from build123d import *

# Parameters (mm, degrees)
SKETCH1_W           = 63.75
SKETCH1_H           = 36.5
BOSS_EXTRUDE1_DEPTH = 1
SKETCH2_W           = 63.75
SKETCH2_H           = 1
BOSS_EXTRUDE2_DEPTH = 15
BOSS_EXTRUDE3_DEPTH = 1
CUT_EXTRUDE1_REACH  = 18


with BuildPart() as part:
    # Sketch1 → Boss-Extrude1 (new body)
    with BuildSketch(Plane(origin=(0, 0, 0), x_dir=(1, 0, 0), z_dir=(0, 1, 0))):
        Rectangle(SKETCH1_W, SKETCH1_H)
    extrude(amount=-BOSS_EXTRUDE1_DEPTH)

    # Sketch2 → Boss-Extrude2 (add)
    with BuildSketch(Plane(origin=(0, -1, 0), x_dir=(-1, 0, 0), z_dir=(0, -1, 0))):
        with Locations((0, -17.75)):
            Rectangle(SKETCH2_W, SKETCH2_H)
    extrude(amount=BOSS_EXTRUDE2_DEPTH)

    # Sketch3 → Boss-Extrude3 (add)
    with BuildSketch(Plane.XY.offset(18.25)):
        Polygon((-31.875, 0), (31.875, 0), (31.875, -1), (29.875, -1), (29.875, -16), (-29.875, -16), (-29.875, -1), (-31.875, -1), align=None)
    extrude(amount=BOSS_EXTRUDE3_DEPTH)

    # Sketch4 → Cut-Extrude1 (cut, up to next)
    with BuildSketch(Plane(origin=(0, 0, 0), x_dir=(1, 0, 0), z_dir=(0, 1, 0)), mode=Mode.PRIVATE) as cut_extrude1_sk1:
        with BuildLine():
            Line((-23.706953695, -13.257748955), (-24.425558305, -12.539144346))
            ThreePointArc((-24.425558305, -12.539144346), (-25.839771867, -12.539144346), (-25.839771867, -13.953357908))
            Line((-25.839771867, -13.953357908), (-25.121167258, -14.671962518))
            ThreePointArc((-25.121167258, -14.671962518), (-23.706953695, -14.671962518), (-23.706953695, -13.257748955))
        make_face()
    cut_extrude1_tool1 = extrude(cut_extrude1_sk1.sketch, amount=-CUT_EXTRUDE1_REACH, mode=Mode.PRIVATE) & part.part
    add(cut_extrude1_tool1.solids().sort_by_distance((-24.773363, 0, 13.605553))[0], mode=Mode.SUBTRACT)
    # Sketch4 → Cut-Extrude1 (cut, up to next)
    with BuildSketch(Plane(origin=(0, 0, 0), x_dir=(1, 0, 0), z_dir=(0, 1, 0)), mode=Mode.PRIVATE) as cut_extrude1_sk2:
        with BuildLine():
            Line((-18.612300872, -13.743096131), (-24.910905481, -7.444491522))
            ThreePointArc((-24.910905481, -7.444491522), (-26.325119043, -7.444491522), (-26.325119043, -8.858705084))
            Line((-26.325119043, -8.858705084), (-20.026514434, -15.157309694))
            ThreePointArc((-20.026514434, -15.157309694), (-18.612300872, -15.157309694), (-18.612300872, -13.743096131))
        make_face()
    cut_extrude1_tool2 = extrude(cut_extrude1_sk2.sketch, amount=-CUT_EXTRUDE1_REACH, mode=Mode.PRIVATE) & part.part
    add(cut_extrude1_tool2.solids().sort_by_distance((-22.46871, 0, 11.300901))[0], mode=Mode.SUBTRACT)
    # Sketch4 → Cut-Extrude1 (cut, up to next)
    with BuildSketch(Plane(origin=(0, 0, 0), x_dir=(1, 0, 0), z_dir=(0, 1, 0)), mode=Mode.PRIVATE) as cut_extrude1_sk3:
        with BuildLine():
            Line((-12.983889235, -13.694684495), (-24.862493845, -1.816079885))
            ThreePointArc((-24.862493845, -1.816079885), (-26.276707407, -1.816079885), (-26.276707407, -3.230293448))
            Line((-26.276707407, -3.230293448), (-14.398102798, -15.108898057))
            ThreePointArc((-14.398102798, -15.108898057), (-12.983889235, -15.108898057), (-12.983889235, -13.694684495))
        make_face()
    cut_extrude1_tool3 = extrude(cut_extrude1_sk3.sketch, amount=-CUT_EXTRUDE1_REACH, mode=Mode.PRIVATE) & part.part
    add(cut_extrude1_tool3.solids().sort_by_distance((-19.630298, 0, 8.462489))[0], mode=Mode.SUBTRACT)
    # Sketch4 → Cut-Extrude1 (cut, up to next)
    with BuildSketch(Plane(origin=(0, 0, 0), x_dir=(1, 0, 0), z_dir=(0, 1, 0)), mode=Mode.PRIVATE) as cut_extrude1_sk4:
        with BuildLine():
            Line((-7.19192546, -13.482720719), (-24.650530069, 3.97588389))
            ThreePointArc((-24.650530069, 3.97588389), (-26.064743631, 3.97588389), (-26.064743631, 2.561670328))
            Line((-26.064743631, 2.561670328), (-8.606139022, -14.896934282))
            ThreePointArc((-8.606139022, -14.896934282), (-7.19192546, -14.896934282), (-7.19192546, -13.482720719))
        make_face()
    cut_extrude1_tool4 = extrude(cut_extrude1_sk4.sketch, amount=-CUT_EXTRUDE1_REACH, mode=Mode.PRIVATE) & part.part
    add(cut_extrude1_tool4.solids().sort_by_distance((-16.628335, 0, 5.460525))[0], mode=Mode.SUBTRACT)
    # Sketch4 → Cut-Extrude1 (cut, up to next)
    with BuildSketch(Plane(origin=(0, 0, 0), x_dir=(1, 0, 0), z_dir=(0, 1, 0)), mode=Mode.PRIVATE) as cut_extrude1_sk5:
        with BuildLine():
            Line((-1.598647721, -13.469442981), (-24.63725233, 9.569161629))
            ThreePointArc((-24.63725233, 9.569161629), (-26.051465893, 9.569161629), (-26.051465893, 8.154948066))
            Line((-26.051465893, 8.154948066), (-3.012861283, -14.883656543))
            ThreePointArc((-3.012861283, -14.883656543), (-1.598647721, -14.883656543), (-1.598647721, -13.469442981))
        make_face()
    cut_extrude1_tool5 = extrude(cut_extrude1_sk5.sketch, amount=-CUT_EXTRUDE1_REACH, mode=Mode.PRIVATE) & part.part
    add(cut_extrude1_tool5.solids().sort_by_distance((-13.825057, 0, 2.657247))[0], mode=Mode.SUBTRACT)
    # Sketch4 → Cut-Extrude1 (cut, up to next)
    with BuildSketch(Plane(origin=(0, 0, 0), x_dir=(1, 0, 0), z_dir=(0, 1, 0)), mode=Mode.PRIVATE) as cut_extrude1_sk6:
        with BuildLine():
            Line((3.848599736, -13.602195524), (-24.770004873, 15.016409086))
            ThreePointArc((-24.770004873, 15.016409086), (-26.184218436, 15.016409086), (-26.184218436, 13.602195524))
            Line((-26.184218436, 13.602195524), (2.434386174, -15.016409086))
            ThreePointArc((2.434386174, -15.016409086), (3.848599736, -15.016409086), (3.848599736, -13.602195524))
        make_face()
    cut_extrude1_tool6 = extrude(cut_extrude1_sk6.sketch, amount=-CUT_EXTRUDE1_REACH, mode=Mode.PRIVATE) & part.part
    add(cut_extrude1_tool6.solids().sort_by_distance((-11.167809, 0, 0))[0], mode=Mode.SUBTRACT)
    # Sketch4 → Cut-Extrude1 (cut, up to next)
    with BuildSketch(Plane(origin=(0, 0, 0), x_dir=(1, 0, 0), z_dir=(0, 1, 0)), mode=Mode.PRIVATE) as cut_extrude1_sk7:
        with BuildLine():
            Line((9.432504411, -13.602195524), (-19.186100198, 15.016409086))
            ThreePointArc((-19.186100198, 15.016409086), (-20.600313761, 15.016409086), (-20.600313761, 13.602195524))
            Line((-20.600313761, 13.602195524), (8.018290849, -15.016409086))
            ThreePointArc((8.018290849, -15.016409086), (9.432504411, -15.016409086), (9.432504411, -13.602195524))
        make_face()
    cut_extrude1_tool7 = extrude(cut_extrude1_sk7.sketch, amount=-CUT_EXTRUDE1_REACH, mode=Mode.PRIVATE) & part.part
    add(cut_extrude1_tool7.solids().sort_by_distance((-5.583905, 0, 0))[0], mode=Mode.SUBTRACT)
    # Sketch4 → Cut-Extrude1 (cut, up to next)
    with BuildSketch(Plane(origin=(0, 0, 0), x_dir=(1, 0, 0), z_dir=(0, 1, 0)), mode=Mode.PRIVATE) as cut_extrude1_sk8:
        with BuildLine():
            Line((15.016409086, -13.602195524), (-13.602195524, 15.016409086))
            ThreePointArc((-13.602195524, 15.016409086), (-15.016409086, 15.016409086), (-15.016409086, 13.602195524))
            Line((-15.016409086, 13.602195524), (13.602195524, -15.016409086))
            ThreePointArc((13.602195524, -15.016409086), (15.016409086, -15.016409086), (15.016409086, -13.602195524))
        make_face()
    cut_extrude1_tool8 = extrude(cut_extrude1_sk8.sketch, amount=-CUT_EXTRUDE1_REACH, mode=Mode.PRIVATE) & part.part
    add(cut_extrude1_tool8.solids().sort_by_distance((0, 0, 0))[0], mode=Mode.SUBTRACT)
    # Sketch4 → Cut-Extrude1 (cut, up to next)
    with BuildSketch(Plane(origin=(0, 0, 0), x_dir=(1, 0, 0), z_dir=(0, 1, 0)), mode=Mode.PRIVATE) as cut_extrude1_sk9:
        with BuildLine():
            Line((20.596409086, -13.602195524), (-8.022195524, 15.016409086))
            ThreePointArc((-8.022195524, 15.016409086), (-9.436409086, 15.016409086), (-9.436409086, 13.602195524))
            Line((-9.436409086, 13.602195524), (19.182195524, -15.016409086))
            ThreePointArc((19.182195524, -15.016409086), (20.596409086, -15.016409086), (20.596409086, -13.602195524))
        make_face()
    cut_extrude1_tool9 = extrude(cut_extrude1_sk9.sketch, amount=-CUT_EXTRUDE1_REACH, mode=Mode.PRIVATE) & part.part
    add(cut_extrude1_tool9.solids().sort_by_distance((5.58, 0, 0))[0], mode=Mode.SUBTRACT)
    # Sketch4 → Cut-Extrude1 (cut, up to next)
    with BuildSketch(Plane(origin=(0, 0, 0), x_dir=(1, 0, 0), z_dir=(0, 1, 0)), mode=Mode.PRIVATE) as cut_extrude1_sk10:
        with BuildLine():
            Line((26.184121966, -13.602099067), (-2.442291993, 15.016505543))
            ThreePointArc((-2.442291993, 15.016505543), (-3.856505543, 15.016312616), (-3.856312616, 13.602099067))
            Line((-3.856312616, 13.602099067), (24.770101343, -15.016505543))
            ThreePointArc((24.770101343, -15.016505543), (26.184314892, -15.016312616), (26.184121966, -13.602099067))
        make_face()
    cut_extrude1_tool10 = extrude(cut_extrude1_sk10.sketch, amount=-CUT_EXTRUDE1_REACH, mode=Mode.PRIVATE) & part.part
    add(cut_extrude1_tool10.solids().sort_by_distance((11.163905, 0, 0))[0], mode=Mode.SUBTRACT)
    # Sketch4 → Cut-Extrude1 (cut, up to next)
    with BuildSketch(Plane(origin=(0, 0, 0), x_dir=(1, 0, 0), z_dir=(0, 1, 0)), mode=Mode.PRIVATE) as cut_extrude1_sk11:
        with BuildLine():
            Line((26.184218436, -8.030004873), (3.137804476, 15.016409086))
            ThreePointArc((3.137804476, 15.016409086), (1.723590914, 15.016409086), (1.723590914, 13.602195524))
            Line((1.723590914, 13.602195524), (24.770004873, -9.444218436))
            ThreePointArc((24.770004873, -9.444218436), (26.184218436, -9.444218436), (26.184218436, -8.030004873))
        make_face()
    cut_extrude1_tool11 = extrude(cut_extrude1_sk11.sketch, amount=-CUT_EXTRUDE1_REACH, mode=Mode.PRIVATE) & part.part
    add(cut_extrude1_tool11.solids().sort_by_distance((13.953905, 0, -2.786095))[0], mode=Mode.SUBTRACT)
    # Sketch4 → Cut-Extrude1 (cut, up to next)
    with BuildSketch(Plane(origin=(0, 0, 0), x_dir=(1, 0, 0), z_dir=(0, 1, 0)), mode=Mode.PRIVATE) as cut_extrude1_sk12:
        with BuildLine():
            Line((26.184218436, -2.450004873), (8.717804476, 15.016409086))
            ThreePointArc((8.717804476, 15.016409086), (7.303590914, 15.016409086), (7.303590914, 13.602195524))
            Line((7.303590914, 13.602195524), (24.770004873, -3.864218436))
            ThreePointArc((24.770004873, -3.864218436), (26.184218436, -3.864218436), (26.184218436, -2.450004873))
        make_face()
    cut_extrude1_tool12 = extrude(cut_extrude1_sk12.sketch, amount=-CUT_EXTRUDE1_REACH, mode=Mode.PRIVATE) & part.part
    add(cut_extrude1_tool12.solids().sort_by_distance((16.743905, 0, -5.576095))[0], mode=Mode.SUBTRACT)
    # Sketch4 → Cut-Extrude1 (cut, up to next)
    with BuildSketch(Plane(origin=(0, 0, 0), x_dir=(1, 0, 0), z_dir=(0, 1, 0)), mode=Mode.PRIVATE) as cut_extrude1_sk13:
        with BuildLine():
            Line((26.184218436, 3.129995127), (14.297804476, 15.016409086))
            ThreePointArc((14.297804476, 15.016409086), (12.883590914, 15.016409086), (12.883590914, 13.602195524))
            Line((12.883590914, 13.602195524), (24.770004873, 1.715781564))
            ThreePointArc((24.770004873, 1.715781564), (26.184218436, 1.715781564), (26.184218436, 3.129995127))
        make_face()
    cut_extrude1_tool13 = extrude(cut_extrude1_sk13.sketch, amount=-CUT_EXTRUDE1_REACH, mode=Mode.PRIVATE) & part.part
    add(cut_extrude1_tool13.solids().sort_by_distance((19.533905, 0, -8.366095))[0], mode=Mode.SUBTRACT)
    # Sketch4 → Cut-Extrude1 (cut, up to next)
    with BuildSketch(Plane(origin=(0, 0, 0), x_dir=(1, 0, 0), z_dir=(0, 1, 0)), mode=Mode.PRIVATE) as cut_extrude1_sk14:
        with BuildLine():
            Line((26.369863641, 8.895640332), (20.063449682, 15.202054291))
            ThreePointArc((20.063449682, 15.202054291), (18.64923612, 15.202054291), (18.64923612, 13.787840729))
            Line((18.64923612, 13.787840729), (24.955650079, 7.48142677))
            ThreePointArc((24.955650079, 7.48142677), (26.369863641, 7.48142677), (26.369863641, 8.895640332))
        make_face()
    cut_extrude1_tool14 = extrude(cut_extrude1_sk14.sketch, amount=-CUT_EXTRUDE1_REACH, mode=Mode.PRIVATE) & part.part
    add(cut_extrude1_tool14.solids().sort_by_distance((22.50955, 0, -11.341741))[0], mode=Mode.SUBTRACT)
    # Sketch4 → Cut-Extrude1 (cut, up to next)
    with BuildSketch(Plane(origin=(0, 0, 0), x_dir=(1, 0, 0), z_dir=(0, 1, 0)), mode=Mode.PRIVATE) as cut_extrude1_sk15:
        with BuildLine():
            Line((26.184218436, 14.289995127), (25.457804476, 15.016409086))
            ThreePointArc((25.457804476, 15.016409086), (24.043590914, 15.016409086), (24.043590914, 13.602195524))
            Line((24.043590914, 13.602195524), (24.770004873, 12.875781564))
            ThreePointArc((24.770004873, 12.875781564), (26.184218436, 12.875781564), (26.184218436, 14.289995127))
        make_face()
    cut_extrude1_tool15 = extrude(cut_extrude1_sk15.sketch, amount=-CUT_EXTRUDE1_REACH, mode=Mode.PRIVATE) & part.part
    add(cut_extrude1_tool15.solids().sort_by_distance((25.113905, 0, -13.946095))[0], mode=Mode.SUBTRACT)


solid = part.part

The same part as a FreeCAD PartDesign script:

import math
import FreeCAD as App
import Part
import Sketcher
from FreeCAD import Vector
Q = App.Units.Quantity

doc = App.newDocument("Part")
body = doc.addObject("PartDesign::Body", "Body")

sketch1 = body.newObject("Sketcher::SketchObject", "Sketch")
sketch1.AttachmentSupport = (doc.getObject("XZ_Plane"), [""])
sketch1.MapMode = "FlatFace"
sketch1.addGeometry(Part.LineSegment(Vector(-32, -18, 0), Vector(-32, 18, 0)), False)
sketch1.addGeometry(Part.LineSegment(Vector(-32, 18, 0), Vector(32, 18, 0)), False)
sketch1.addGeometry(Part.LineSegment(Vector(32, 18, 0), Vector(32, -18, 0)), False)
sketch1.addGeometry(Part.LineSegment(Vector(32, -18, 0), Vector(-32, -18, 0)), False)
sketch1.addConstraint(Sketcher.Constraint("Coincident", 0, 2, 1, 1))
sketch1.addConstraint(Sketcher.Constraint("Coincident", 1, 2, 2, 1))
sketch1.addConstraint(Sketcher.Constraint("Coincident", 2, 2, 3, 1))
sketch1.addConstraint(Sketcher.Constraint("Coincident", 3, 2, 0, 1))
sketch1.addConstraint(Sketcher.Constraint("Vertical", 0))
sketch1.addConstraint(Sketcher.Constraint("Horizontal", 1))
sketch1.addConstraint(Sketcher.Constraint("Vertical", 2))
sketch1.addConstraint(Sketcher.Constraint("Horizontal", 3))
sketch1.addConstraint(Sketcher.Constraint("Symmetric", 0, 2, 2, 2, -1, 1))
sketch1.addConstraint(Sketcher.Constraint("DistanceY", 0, 1, 0, 2, 36.5))
sketch1.addConstraint(Sketcher.Constraint("DistanceX", 1, 1, 1, 2, 63.75))
pad1 = body.newObject("PartDesign::Pad", "Pad")
pad1.Profile = sketch1
pad1.Length = 1

sketch2 = body.newObject("Sketcher::SketchObject", "Sketch001")
sketch2.AttachmentSupport = (doc.getObject("XZ_Plane"), [""])
sketch2.MapMode = "FlatFace"
sketch2.AttachmentOffset = App.Placement(Vector(0, 0, 1), App.Rotation())
sketch2.addGeometry(Part.LineSegment(Vector(31.9, 17.2, 0), Vector(31.9, 18.2, 0)), False)
sketch2.addGeometry(Part.LineSegment(Vector(31.9, 18.2, 0), Vector(-31.9, 18.2, 0)), False)
sketch2.addGeometry(Part.LineSegment(Vector(-31.9, 18.2, 0), Vector(-31.9, 17.2, 0)), False)
sketch2.addGeometry(Part.LineSegment(Vector(-31.9, 17.2, 0), Vector(31.9, 17.2, 0)), False)
sketch2.addConstraint(Sketcher.Constraint("Coincident", 0, 2, 1, 1))
sketch2.addConstraint(Sketcher.Constraint("Coincident", 1, 2, 2, 1))
sketch2.addConstraint(Sketcher.Constraint("Coincident", 2, 2, 3, 1))
sketch2.addConstraint(Sketcher.Constraint("Coincident", 3, 2, 0, 1))
sketch2.addConstraint(Sketcher.Constraint("Vertical", 0))
sketch2.addConstraint(Sketcher.Constraint("Horizontal", 1))
sketch2.addConstraint(Sketcher.Constraint("Vertical", 2))
sketch2.addConstraint(Sketcher.Constraint("Horizontal", 3))
sketch2.addConstraint(Sketcher.Constraint("DistanceY", 0, 1, 0, 2, 1.0))
sketch2.addConstraint(Sketcher.Constraint("DistanceX", 1, 2, 1, 1, 63.75))
sketch2.addConstraint(Sketcher.Constraint("DistanceY", -1, 1, 0, 2, 18.25))
sketch2.addConstraint(Sketcher.Constraint("DistanceX", -1, 1, 0, 2, 31.875))
pad2 = body.newObject("PartDesign::Pad", "Pad001")
pad2.Profile = sketch2
pad2.Length = 15

sketch3 = body.newObject("Sketcher::SketchObject", "Sketch002")
sketch3.AttachmentSupport = (doc.getObject("XY_Plane"), [""])
sketch3.MapMode = "FlatFace"
sketch3.AttachmentOffset = App.Placement(Vector(0, 0, 18.25), App.Rotation())
sketch3.addGeometry(Part.LineSegment(Vector(31.9, 0, 0), Vector(-31.9, 0, 0)), False)
sketch3.addGeometry(Part.LineSegment(Vector(-31.9, 0, 0), Vector(-31.9, -1, 0)), False)
sketch3.addGeometry(Part.LineSegment(Vector(-31.9, -1, 0), Vector(-29.9, -1, 0)), False)
sketch3.addGeometry(Part.LineSegment(Vector(-29.9, -1, 0), Vector(-29.9, -16, 0)), False)
sketch3.addGeometry(Part.LineSegment(Vector(-29.9, -16, 0), Vector(29.9, -16, 0)), False)
sketch3.addGeometry(Part.LineSegment(Vector(29.9, -16, 0), Vector(29.9, -1, 0)), False)
sketch3.addGeometry(Part.LineSegment(Vector(29.9, -1, 0), Vector(31.9, -1, 0)), False)
sketch3.addGeometry(Part.LineSegment(Vector(31.9, -1, 0), Vector(31.9, 0, 0)), False)
sketch3.addConstraint(Sketcher.Constraint("Coincident", 0, 2, 1, 1))
sketch3.addConstraint(Sketcher.Constraint("Coincident", 1, 2, 2, 1))
sketch3.addConstraint(Sketcher.Constraint("Coincident", 2, 2, 3, 1))
sketch3.addConstraint(Sketcher.Constraint("Coincident", 3, 2, 4, 1))
sketch3.addConstraint(Sketcher.Constraint("Coincident", 4, 2, 5, 1))
sketch3.addConstraint(Sketcher.Constraint("Coincident", 5, 2, 6, 1))
sketch3.addConstraint(Sketcher.Constraint("Coincident", 6, 2, 7, 1))
sketch3.addConstraint(Sketcher.Constraint("Coincident", 7, 2, 0, 1))
sketch3.addConstraint(Sketcher.Constraint("Horizontal", 0))
sketch3.addConstraint(Sketcher.Constraint("Vertical", 1))
sketch3.addConstraint(Sketcher.Constraint("Horizontal", 2))
sketch3.addConstraint(Sketcher.Constraint("Vertical", 3))
sketch3.addConstraint(Sketcher.Constraint("Horizontal", 4))
sketch3.addConstraint(Sketcher.Constraint("Vertical", 5))
sketch3.addConstraint(Sketcher.Constraint("Horizontal", 6))
sketch3.addConstraint(Sketcher.Constraint("Vertical", 7))
sketch3.addConstraint(Sketcher.Constraint("Symmetric", 0, 2, 7, 2, -1, 1))
sketch3.addConstraint(Sketcher.Constraint("Symmetric", 2, 2, 5, 2, -2))
sketch3.addConstraint(Sketcher.Constraint("DistanceX", 2, 1, 2, 2, 2.0))
sketch3.addConstraint(Sketcher.Constraint("DistanceY", 1, 2, 1, 1, 1.0))
sketch3.addConstraint(Sketcher.Constraint("DistanceY", 3, 2, 3, 1, 15.0))
sketch3.addConstraint(Sketcher.Constraint("DistanceX", 0, 2, 0, 1, 63.75))
pad3 = body.newObject("PartDesign::Pad", "Pad002")
pad3.Profile = sketch3
pad3.Length = 1

sketch4 = body.newObject("Sketcher::SketchObject", "Sketch003")
sketch4.AttachmentSupport = (doc.getObject("XZ_Plane"), [""])
sketch4.MapMode = "FlatFace"
sketch4.addGeometry(Part.LineSegment(Vector(-23.7, 13.3, 0), Vector(-24.4, 12.5, 0)), False)
sketch4.addGeometry(Part.ArcOfCircle(Part.Circle(Vector(-25.1, 13.2, 0), Vector(0, 0, 1), 1), math.radians(135), math.radians(315)), False)
sketch4.addGeometry(Part.LineSegment(Vector(-25.8, 14, 0), Vector(-25.1, 14.7, 0)), False)
sketch4.addGeometry(Part.ArcOfCircle(Part.Circle(Vector(-24.4, 14, 0), Vector(0, 0, 1), 1), math.radians(-45), math.radians(135)), False)
sketch4.addConstraint(Sketcher.Constraint("Tangent", 0, 2, 1, 2))
sketch4.addConstraint(Sketcher.Constraint("Tangent", 1, 1, 2, 1))
sketch4.addConstraint(Sketcher.Constraint("Tangent", 2, 2, 3, 2))
sketch4.addConstraint(Sketcher.Constraint("Tangent", 3, 1, 0, 1))
sketch4.addConstraint(Sketcher.Constraint("Equal", 1, 3))
sketch4.addConstraint(Sketcher.Constraint("Radius", 1, 1.0))
sketch4.addConstraint(Sketcher.Constraint("Angle", 0, Q("-135 deg")))
sketch4.addConstraint(Sketcher.Constraint("Distance", 0, 1.01626))
sketch4.addConstraint(Sketcher.Constraint("DistanceY", -1, 1, 1, 3, 13.246251))
sketch4.addConstraint(Sketcher.Constraint("DistanceX", 3, 3, -1, 1, 24.41406))
pocket1 = body.newObject("PartDesign::Pocket", "Pocket")
pocket1.Profile = sketch4
pocket1.Type = "UpToFirst"
pocket1.Reversed = True

sketch5 = body.newObject("Sketcher::SketchObject", "Sketch004")
sketch5.AttachmentSupport = (doc.getObject("XZ_Plane"), [""])
sketch5.MapMode = "FlatFace"
sketch5.addGeometry(Part.LineSegment(Vector(-18.6, 13.7, 0), Vector(-24.9, 7.4, 0)), False)
sketch5.addGeometry(Part.ArcOfCircle(Part.Circle(Vector(-25.6, 8.2, 0), Vector(0, 0, 1), 1), math.radians(135), math.radians(315)), False)
sketch5.addGeometry(Part.LineSegment(Vector(-26.3, 8.9, 0), Vector(-20, 15.2, 0)), False)
sketch5.addGeometry(Part.ArcOfCircle(Part.Circle(Vector(-19.3, 14.5, 0), Vector(0, 0, 1), 1), math.radians(-45), math.radians(135)), False)
sketch5.addConstraint(Sketcher.Constraint("Tangent", 0, 2, 1, 2))
sketch5.addConstraint(Sketcher.Constraint("Tangent", 1, 1, 2, 1))
sketch5.addConstraint(Sketcher.Constraint("Tangent", 2, 2, 3, 2))
sketch5.addConstraint(Sketcher.Constraint("Tangent", 3, 1, 0, 1))
sketch5.addConstraint(Sketcher.Constraint("Equal", 1, 3))
sketch5.addConstraint(Sketcher.Constraint("Radius", 1, 1.0))
sketch5.addConstraint(Sketcher.Constraint("Angle", 0, Q("-135 deg")))
sketch5.addConstraint(Sketcher.Constraint("DistanceY", -1, 1, 1, 3, 8.151598))
sketch5.addConstraint(Sketcher.Constraint("DistanceX", 3, 1, -1, 1, 18.612301))
sketch5.addConstraint(Sketcher.Constraint("DistanceX", 1, 1, -1, 1, 26.325119))
pocket2 = body.newObject("PartDesign::Pocket", "Pocket001")
pocket2.Profile = sketch5
pocket2.Type = "UpToFirst"
pocket2.Reversed = True

sketch6 = body.newObject("Sketcher::SketchObject", "Sketch005")
sketch6.AttachmentSupport = (doc.getObject("XZ_Plane"), [""])
sketch6.MapMode = "FlatFace"
sketch6.addGeometry(Part.LineSegment(Vector(-13, 13.7, 0), Vector(-24.9, 1.8, 0)), False)
sketch6.addGeometry(Part.ArcOfCircle(Part.Circle(Vector(-25.6, 2.5, 0), Vector(0, 0, 1), 1), math.radians(135), math.radians(315)), False)
sketch6.addGeometry(Part.LineSegment(Vector(-26.3, 3.2, 0), Vector(-14.4, 15.1, 0)), False)
sketch6.addGeometry(Part.ArcOfCircle(Part.Circle(Vector(-13.7, 14.4, 0), Vector(0, 0, 1), 1), math.radians(-45), math.radians(135)), False)
sketch6.addConstraint(Sketcher.Constraint("Tangent", 0, 2, 1, 2))
sketch6.addConstraint(Sketcher.Constraint("Tangent", 1, 1, 2, 1))
sketch6.addConstraint(Sketcher.Constraint("Tangent", 2, 2, 3, 2))
sketch6.addConstraint(Sketcher.Constraint("Tangent", 3, 1, 0, 1))
sketch6.addConstraint(Sketcher.Constraint("Equal", 1, 3))
sketch6.addConstraint(Sketcher.Constraint("Radius", 1, 1.0))
sketch6.addConstraint(Sketcher.Constraint("Angle", 0, Q("-135 deg")))
sketch6.addConstraint(Sketcher.Constraint("DistanceX", 1, 3, -1, 1, 25.569601))
sketch6.addConstraint(Sketcher.Constraint("DistanceY", -1, 1, 2, 2, 15.108898))
sketch6.addConstraint(Sketcher.Constraint("DistanceY", -1, 1, 0, 2, 1.81608))
pocket3 = body.newObject("PartDesign::Pocket", "Pocket002")
pocket3.Profile = sketch6
pocket3.Type = "UpToFirst"
pocket3.Reversed = True

sketch7 = body.newObject("Sketcher::SketchObject", "Sketch006")
sketch7.AttachmentSupport = (doc.getObject("XZ_Plane"), [""])
sketch7.MapMode = "FlatFace"
sketch7.addGeometry(Part.LineSegment(Vector(-7.2, 13.5, 0), Vector(-24.7, -4, 0)), False)
sketch7.addGeometry(Part.ArcOfCircle(Part.Circle(Vector(-25.4, -3.3, 0), Vector(0, 0, 1), 1), math.radians(135), math.radians(315)), False)
sketch7.addGeometry(Part.LineSegment(Vector(-26.1, -2.6, 0), Vector(-8.6, 14.9, 0)), False)
sketch7.addGeometry(Part.ArcOfCircle(Part.Circle(Vector(-7.9, 14.2, 0), Vector(0, 0, 1), 1), math.radians(-45), math.radians(135)), False)
sketch7.addConstraint(Sketcher.Constraint("Tangent", 0, 2, 1, 2))
sketch7.addConstraint(Sketcher.Constraint("Tangent", 1, 1, 2, 1))
sketch7.addConstraint(Sketcher.Constraint("Tangent", 2, 2, 3, 2))
sketch7.addConstraint(Sketcher.Constraint("Tangent", 3, 1, 0, 1))
sketch7.addConstraint(Sketcher.Constraint("Equal", 1, 3))
sketch7.addConstraint(Sketcher.Constraint("Radius", 1, 1.0))
sketch7.addConstraint(Sketcher.Constraint("Angle", 0, Q("-135 deg")))
sketch7.addConstraint(Sketcher.Constraint("DistanceX", 0, 2, -1, 1, 24.65053))
sketch7.addConstraint(Sketcher.Constraint("DistanceY", 1, 1, -1, 1, 2.56167))
sketch7.addConstraint(Sketcher.Constraint("DistanceX", 2, 2, -1, 1, 8.606139))
pocket4 = body.newObject("PartDesign::Pocket", "Pocket003")
pocket4.Profile = sketch7
pocket4.Type = "UpToFirst"
pocket4.Reversed = True

sketch8 = body.newObject("Sketcher::SketchObject", "Sketch007")
sketch8.AttachmentSupport = (doc.getObject("XZ_Plane"), [""])
sketch8.MapMode = "FlatFace"
sketch8.addGeometry(Part.LineSegment(Vector(-1.6, 13.5, 0), Vector(-24.6, -9.6, 0)), False)
sketch8.addGeometry(Part.ArcOfCircle(Part.Circle(Vector(-25.3, -8.9, 0), Vector(0, 0, 1), 1), math.radians(135), math.radians(315)), False)
sketch8.addGeometry(Part.LineSegment(Vector(-26.1, -8.2, 0), Vector(-3, 14.9, 0)), False)
sketch8.addGeometry(Part.ArcOfCircle(Part.Circle(Vector(-2.3, 14.2, 0), Vector(0, 0, 1), 1), math.radians(-45), math.radians(135)), False)
sketch8.addConstraint(Sketcher.Constraint("Tangent", 0, 2, 1, 2))
sketch8.addConstraint(Sketcher.Constraint("Tangent", 1, 1, 2, 1))
sketch8.addConstraint(Sketcher.Constraint("Tangent", 2, 2, 3, 2))
sketch8.addConstraint(Sketcher.Constraint("Tangent", 3, 1, 0, 1))
sketch8.addConstraint(Sketcher.Constraint("Equal", 1, 3))
sketch8.addConstraint(Sketcher.Constraint("Radius", 1, 1.0))
sketch8.addConstraint(Sketcher.Constraint("Angle", 0, Q("-135 deg")))
sketch8.addConstraint(Sketcher.Constraint("DistanceX", 1, 3, -1, 1, 25.344359))
sketch8.addConstraint(Sketcher.Constraint("DistanceY", -1, 1, 3, 3, 14.17655))
sketch8.addConstraint(Sketcher.Constraint("DistanceY", 0, 2, -1, 1, 9.569162))
pocket5 = body.newObject("PartDesign::Pocket", "Pocket004")
pocket5.Profile = sketch8
pocket5.Type = "UpToFirst"
pocket5.Reversed = True

sketch9 = body.newObject("Sketcher::SketchObject", "Sketch008")
sketch9.AttachmentSupport = (doc.getObject("XZ_Plane"), [""])
sketch9.MapMode = "FlatFace"
sketch9.addGeometry(Part.LineSegment(Vector(3.8, 13.6, 0), Vector(-24.8, -15, 0)), False)
sketch9.addGeometry(Part.ArcOfCircle(Part.Circle(Vector(-25.5, -14.3, 0), Vector(0, 0, 1), 1), math.radians(135), math.radians(315)), False)
sketch9.addGeometry(Part.LineSegment(Vector(-26.2, -13.6, 0), Vector(2.4, 15, 0)), False)
sketch9.addGeometry(Part.ArcOfCircle(Part.Circle(Vector(3.1, 14.3, 0), Vector(0, 0, 1), 1), math.radians(-45), math.radians(135)), False)
sketch9.addConstraint(Sketcher.Constraint("Tangent", 0, 2, 1, 2))
sketch9.addConstraint(Sketcher.Constraint("Tangent", 1, 1, 2, 1))
sketch9.addConstraint(Sketcher.Constraint("Tangent", 2, 2, 3, 2))
sketch9.addConstraint(Sketcher.Constraint("Tangent", 3, 1, 0, 1))
sketch9.addConstraint(Sketcher.Constraint("Equal", 1, 3))
sketch9.addConstraint(Sketcher.Constraint("Radius", 1, 1.0))
sketch9.addConstraint(Sketcher.Constraint("Angle", 0, Q("-135 deg")))
sketch9.addConstraint(Sketcher.Constraint("DistanceX", -1, 1, 3, 1, 3.8486))
sketch9.addConstraint(Sketcher.Constraint("Distance", 0, 40.472819))
sketch9.addConstraint(Sketcher.Constraint("DistanceY", 0, 2, -1, 1, 15.016409))
pocket6 = body.newObject("PartDesign::Pocket", "Pocket005")
pocket6.Profile = sketch9
pocket6.Type = "UpToFirst"
pocket6.Reversed = True

sketch10 = body.newObject("Sketcher::SketchObject", "Sketch009")
sketch10.AttachmentSupport = (doc.getObject("XZ_Plane"), [""])
sketch10.MapMode = "FlatFace"
sketch10.addGeometry(Part.LineSegment(Vector(9.4, 13.6, 0), Vector(-19.2, -15, 0)), False)
sketch10.addGeometry(Part.ArcOfCircle(Part.Circle(Vector(-19.9, -14.3, 0), Vector(0, 0, 1), 1), math.radians(135), math.radians(315)), False)
sketch10.addGeometry(Part.LineSegment(Vector(-20.6, -13.6, 0), Vector(8, 15, 0)), False)
sketch10.addGeometry(Part.ArcOfCircle(Part.Circle(Vector(8.7, 14.3, 0), Vector(0, 0, 1), 1), math.radians(-45), math.radians(135)), False)
sketch10.addConstraint(Sketcher.Constraint("Tangent", 0, 2, 1, 2))
sketch10.addConstraint(Sketcher.Constraint("Tangent", 1, 1, 2, 1))
sketch10.addConstraint(Sketcher.Constraint("Tangent", 2, 2, 3, 2))
sketch10.addConstraint(Sketcher.Constraint("Tangent", 3, 1, 0, 1))
sketch10.addConstraint(Sketcher.Constraint("Equal", 1, 3))
sketch10.addConstraint(Sketcher.Constraint("Radius", 1, 1.0))
sketch10.addConstraint(Sketcher.Constraint("Angle", 0, Q("-135 deg")))
sketch10.addConstraint(Sketcher.Constraint("DistanceX", 0, 2, -1, 1, 19.1861))
sketch10.addConstraint(Sketcher.Constraint("Distance", 0, 40.472819))
sketch10.addConstraint(Sketcher.Constraint("DistanceY", 0, 2, -1, 1, 15.016409))
pocket7 = body.newObject("PartDesign::Pocket", "Pocket006")
pocket7.Profile = sketch10
pocket7.Type = "UpToFirst"
pocket7.Reversed = True

sketch11 = body.newObject("Sketcher::SketchObject", "Sketch010")
sketch11.AttachmentSupport = (doc.getObject("XZ_Plane"), [""])
sketch11.MapMode = "FlatFace"
sketch11.addGeometry(Part.LineSegment(Vector(15, 13.6, 0), Vector(-13.6, -15, 0)), False)
sketch11.addGeometry(Part.ArcOfCircle(Part.Circle(Vector(-14.3, -14.3, 0), Vector(0, 0, 1), 1), math.radians(135), math.radians(315)), False)
sketch11.addGeometry(Part.LineSegment(Vector(-15, -13.6, 0), Vector(13.6, 15, 0)), False)
sketch11.addGeometry(Part.ArcOfCircle(Part.Circle(Vector(14.3, 14.3, 0), Vector(0, 0, 1), 1), math.radians(-45), math.radians(135)), False)
sketch11.addConstraint(Sketcher.Constraint("Tangent", 0, 2, 1, 2))
sketch11.addConstraint(Sketcher.Constraint("Tangent", 1, 1, 2, 1))
sketch11.addConstraint(Sketcher.Constraint("Tangent", 2, 2, 3, 2))
sketch11.addConstraint(Sketcher.Constraint("Tangent", 3, 1, 0, 1))
sketch11.addConstraint(Sketcher.Constraint("Equal", 1, 3))
sketch11.addConstraint(Sketcher.Constraint("Symmetric", 1, 3, 3, 3, -1, 1))
sketch11.addConstraint(Sketcher.Constraint("Radius", 1, 1.0))
sketch11.addConstraint(Sketcher.Constraint("Angle", 0, Q("-135 deg")))
sketch11.addConstraint(Sketcher.Constraint("Distance", 0, 40.472819))
pocket8 = body.newObject("PartDesign::Pocket", "Pocket007")
pocket8.Profile = sketch11
pocket8.Type = "UpToFirst"
pocket8.Reversed = True

sketch12 = body.newObject("Sketcher::SketchObject", "Sketch011")
sketch12.AttachmentSupport = (doc.getObject("XZ_Plane"), [""])
sketch12.MapMode = "FlatFace"
sketch12.addGeometry(Part.LineSegment(Vector(20.6, 13.6, 0), Vector(-8, -15, 0)), False)
sketch12.addGeometry(Part.ArcOfCircle(Part.Circle(Vector(-8.7, -14.3, 0), Vector(0, 0, 1), 1), math.radians(135), math.radians(315)), False)
sketch12.addGeometry(Part.LineSegment(Vector(-9.4, -13.6, 0), Vector(19.2, 15, 0)), False)
sketch12.addGeometry(Part.ArcOfCircle(Part.Circle(Vector(19.9, 14.3, 0), Vector(0, 0, 1), 1), math.radians(-45), math.radians(135)), False)
sketch12.addConstraint(Sketcher.Constraint("Tangent", 0, 2, 1, 2))
sketch12.addConstraint(Sketcher.Constraint("Tangent", 1, 1, 2, 1))
sketch12.addConstraint(Sketcher.Constraint("Tangent", 2, 2, 3, 2))
sketch12.addConstraint(Sketcher.Constraint("Tangent", 3, 1, 0, 1))
sketch12.addConstraint(Sketcher.Constraint("Equal", 1, 3))
sketch12.addConstraint(Sketcher.Constraint("Radius", 1, 1.0))
sketch12.addConstraint(Sketcher.Constraint("Angle", 0, Q("-135 deg")))
sketch12.addConstraint(Sketcher.Constraint("Distance", 0, 40.472819))
sketch12.addConstraint(Sketcher.Constraint("DistanceY", 0, 2, -1, 1, 15.016409))
sketch12.addConstraint(Sketcher.Constraint("DistanceX", 1, 1, -1, 1, 9.436409))
pocket9 = body.newObject("PartDesign::Pocket", "Pocket008")
pocket9.Profile = sketch12
pocket9.Type = "UpToFirst"
pocket9.Reversed = True

sketch13 = body.newObject("Sketcher::SketchObject", "Sketch012")
sketch13.AttachmentSupport = (doc.getObject("XZ_Plane"), [""])
sketch13.MapMode = "FlatFace"
sketch13.addGeometry(Part.LineSegment(Vector(26.184122, 13.602099, 0), Vector(-2.442292, -15.016506, 0)), False)
sketch13.addGeometry(Part.ArcOfCircle(Part.Circle(Vector(-3.149302, -14.309302, 0), Vector(0, 0, 1), 1), math.radians(134.992184), math.radians(314.992184)), False)
sketch13.addGeometry(Part.LineSegment(Vector(-3.856313, -13.602099, 0), Vector(24.770101, 15.016506, 0)), False)
sketch13.addGeometry(Part.ArcOfCircle(Part.Circle(Vector(25.477112, 14.309302, 0), Vector(0, 0, 1), 1), math.radians(-45.007816), math.radians(134.992184)), False)
sketch13.addConstraint(Sketcher.Constraint("Coincident", 0, 2, 1, 2))
sketch13.addConstraint(Sketcher.Constraint("Coincident", 1, 1, 2, 1))
sketch13.addConstraint(Sketcher.Constraint("Coincident", 2, 2, 3, 2))
sketch13.addConstraint(Sketcher.Constraint("Coincident", 3, 1, 0, 1))
sketch13.addConstraint(Sketcher.Constraint("Radius", 1, 1.0))
sketch13.addConstraint(Sketcher.Constraint("Radius", 3, 1.0))
sketch13.addConstraint(Sketcher.Constraint("DistanceY", 1, 1, -1, 1, 13.602099))
sketch13.addConstraint(Sketcher.Constraint("DistanceX", -1, 1, 2, 2, 24.770101))
sketch13.addConstraint(Sketcher.Constraint("DistanceY", -1, 1, 3, 1, 13.602099))
sketch13.addConstraint(Sketcher.Constraint("DistanceY", 1, 1, 3, 3, 27.911401))
sketch13.addConstraint(Sketcher.Constraint("DistanceY", 1, 3, 3, 1, 27.911401))
sketch13.addConstraint(Sketcher.Constraint("Distance", 0, 40.478341))
sketch13.addConstraint(Sketcher.Constraint("Distance", 2, 40.478341))
sketch13.addConstraint(Sketcher.Constraint("DistanceX", -1, 1, 3, 3, 25.477112))
pocket10 = body.newObject("PartDesign::Pocket", "Pocket009")
pocket10.Profile = sketch13
pocket10.Type = "UpToFirst"
pocket10.Reversed = True

sketch14 = body.newObject("Sketcher::SketchObject", "Sketch013")
sketch14.AttachmentSupport = (doc.getObject("XZ_Plane"), [""])
sketch14.MapMode = "FlatFace"
sketch14.addGeometry(Part.LineSegment(Vector(26.2, 8, 0), Vector(3.1, -15, 0)), False)
sketch14.addGeometry(Part.ArcOfCircle(Part.Circle(Vector(2.4, -14.3, 0), Vector(0, 0, 1), 1), math.radians(135), math.radians(315)), False)
sketch14.addGeometry(Part.LineSegment(Vector(1.7, -13.6, 0), Vector(24.8, 9.4, 0)), False)
sketch14.addGeometry(Part.ArcOfCircle(Part.Circle(Vector(25.5, 8.7, 0), Vector(0, 0, 1), 1), math.radians(-45), math.radians(135)), False)
sketch14.addConstraint(Sketcher.Constraint("Tangent", 0, 2, 1, 2))
sketch14.addConstraint(Sketcher.Constraint("Tangent", 1, 1, 2, 1))
sketch14.addConstraint(Sketcher.Constraint("Tangent", 2, 2, 3, 2))
sketch14.addConstraint(Sketcher.Constraint("Tangent", 3, 1, 0, 1))
sketch14.addConstraint(Sketcher.Constraint("Equal", 1, 3))
sketch14.addConstraint(Sketcher.Constraint("Radius", 1, 1.0))
sketch14.addConstraint(Sketcher.Constraint("Angle", 0, Q("-135 deg")))
sketch14.addConstraint(Sketcher.Constraint("DistanceX", 0, 2, 2, 2, 21.6322))
sketch14.addConstraint(Sketcher.Constraint("DistanceX", -1, 1, 3, 3, 25.477112))
sketch14.addConstraint(Sketcher.Constraint("DistanceY", -1, 1, 3, 3, 8.737112))
pocket11 = body.newObject("PartDesign::Pocket", "Pocket010")
pocket11.Profile = sketch14
pocket11.Type = "UpToFirst"
pocket11.Reversed = True

sketch15 = body.newObject("Sketcher::SketchObject", "Sketch014")
sketch15.AttachmentSupport = (doc.getObject("XZ_Plane"), [""])
sketch15.MapMode = "FlatFace"
sketch15.addGeometry(Part.LineSegment(Vector(26.2, 2.5, 0), Vector(8.7, -15, 0)), False)
sketch15.addGeometry(Part.ArcOfCircle(Part.Circle(Vector(8, -14.3, 0), Vector(0, 0, 1), 1), math.radians(135), math.radians(315)), False)
sketch15.addGeometry(Part.LineSegment(Vector(7.3, -13.6, 0), Vector(24.8, 3.9, 0)), False)
sketch15.addGeometry(Part.ArcOfCircle(Part.Circle(Vector(25.5, 3.2, 0), Vector(0, 0, 1), 1), math.radians(-45), math.radians(135)), False)
sketch15.addConstraint(Sketcher.Constraint("Tangent", 0, 2, 1, 2))
sketch15.addConstraint(Sketcher.Constraint("Tangent", 1, 1, 2, 1))
sketch15.addConstraint(Sketcher.Constraint("Tangent", 2, 2, 3, 2))
sketch15.addConstraint(Sketcher.Constraint("Tangent", 3, 1, 0, 1))
sketch15.addConstraint(Sketcher.Constraint("Equal", 1, 3))
sketch15.addConstraint(Sketcher.Constraint("Radius", 1, 1.0))
sketch15.addConstraint(Sketcher.Constraint("Angle", 0, Q("-135 deg")))
sketch15.addConstraint(Sketcher.Constraint("DistanceX", 0, 2, 2, 2, 16.0522))
sketch15.addConstraint(Sketcher.Constraint("DistanceX", -1, 1, 3, 3, 25.477112))
sketch15.addConstraint(Sketcher.Constraint("DistanceY", -1, 1, 3, 3, 3.157112))
pocket12 = body.newObject("PartDesign::Pocket", "Pocket011")
pocket12.Profile = sketch15
pocket12.Type = "UpToFirst"
pocket12.Reversed = True

sketch16 = body.newObject("Sketcher::SketchObject", "Sketch015")
sketch16.AttachmentSupport = (doc.getObject("XZ_Plane"), [""])
sketch16.MapMode = "FlatFace"
sketch16.addGeometry(Part.LineSegment(Vector(26.2, -3.1, 0), Vector(14.3, -15, 0)), False)
sketch16.addGeometry(Part.ArcOfCircle(Part.Circle(Vector(13.6, -14.3, 0), Vector(0, 0, 1), 1), math.radians(135), math.radians(315)), False)
sketch16.addGeometry(Part.LineSegment(Vector(12.9, -13.6, 0), Vector(24.8, -1.7, 0)), False)
sketch16.addGeometry(Part.ArcOfCircle(Part.Circle(Vector(25.5, -2.4, 0), Vector(0, 0, 1), 1), math.radians(-45), math.radians(135)), False)
sketch16.addConstraint(Sketcher.Constraint("Tangent", 0, 2, 1, 2))
sketch16.addConstraint(Sketcher.Constraint("Tangent", 1, 1, 2, 1))
sketch16.addConstraint(Sketcher.Constraint("Tangent", 2, 2, 3, 2))
sketch16.addConstraint(Sketcher.Constraint("Tangent", 3, 1, 0, 1))
sketch16.addConstraint(Sketcher.Constraint("Equal", 1, 3))
sketch16.addConstraint(Sketcher.Constraint("Radius", 1, 1.0))
sketch16.addConstraint(Sketcher.Constraint("Angle", 0, Q("-135 deg")))
sketch16.addConstraint(Sketcher.Constraint("DistanceX", 0, 2, 2, 2, 10.4722))
sketch16.addConstraint(Sketcher.Constraint("DistanceX", -1, 1, 3, 3, 25.477112))
sketch16.addConstraint(Sketcher.Constraint("DistanceY", 3, 3, -1, 1, 2.422888))
pocket13 = body.newObject("PartDesign::Pocket", "Pocket012")
pocket13.Profile = sketch16
pocket13.Type = "UpToFirst"
pocket13.Reversed = True

sketch17 = body.newObject("Sketcher::SketchObject", "Sketch016")
sketch17.AttachmentSupport = (doc.getObject("XZ_Plane"), [""])
sketch17.MapMode = "FlatFace"
sketch17.addGeometry(Part.LineSegment(Vector(26.4, -8.9, 0), Vector(20.1, -15.2, 0)), False)
sketch17.addGeometry(Part.ArcOfCircle(Part.Circle(Vector(19.4, -14.5, 0), Vector(0, 0, 1), 1), math.radians(135), math.radians(315)), False)
sketch17.addGeometry(Part.LineSegment(Vector(18.6, -13.8, 0), Vector(25, -7.5, 0)), False)
sketch17.addGeometry(Part.ArcOfCircle(Part.Circle(Vector(25.7, -8.2, 0), Vector(0, 0, 1), 1), math.radians(-45), math.radians(135)), False)
sketch17.addConstraint(Sketcher.Constraint("Tangent", 0, 2, 1, 2))
sketch17.addConstraint(Sketcher.Constraint("Tangent", 1, 1, 2, 1))
sketch17.addConstraint(Sketcher.Constraint("Tangent", 2, 2, 3, 2))
sketch17.addConstraint(Sketcher.Constraint("Tangent", 3, 1, 0, 1))
sketch17.addConstraint(Sketcher.Constraint("Equal", 1, 3))
sketch17.addConstraint(Sketcher.Constraint("Radius", 1, 1.0))
sketch17.addConstraint(Sketcher.Constraint("Angle", 0, Q("-135 deg")))
sketch17.addConstraint(Sketcher.Constraint("DistanceX", 0, 2, 2, 2, 4.8922))
sketch17.addConstraint(Sketcher.Constraint("DistanceX", -1, 1, 0, 2, 20.06345))
sketch17.addConstraint(Sketcher.Constraint("DistanceY", 1, 1, -1, 1, 13.787841))
pocket14 = body.newObject("PartDesign::Pocket", "Pocket013")
pocket14.Profile = sketch17
pocket14.Type = "UpToFirst"
pocket14.Reversed = True

sketch18 = body.newObject("Sketcher::SketchObject", "Sketch017")
sketch18.AttachmentSupport = (doc.getObject("XZ_Plane"), [""])
sketch18.MapMode = "FlatFace"
sketch18.addGeometry(Part.LineSegment(Vector(26.2, -14.3, 0), Vector(25.5, -15, 0)), False)
sketch18.addGeometry(Part.ArcOfCircle(Part.Circle(Vector(24.8, -14.3, 0), Vector(0, 0, 1), 1), math.radians(135), math.radians(315)), False)
sketch18.addGeometry(Part.LineSegment(Vector(24, -13.6, 0), Vector(24.8, -12.9, 0)), False)
sketch18.addGeometry(Part.ArcOfCircle(Part.Circle(Vector(25.5, -13.6, 0), Vector(0, 0, 1), 1), math.radians(-45), math.radians(135)), False)
sketch18.addConstraint(Sketcher.Constraint("Tangent", 0, 2, 1, 2))
sketch18.addConstraint(Sketcher.Constraint("Tangent", 1, 1, 2, 1))
sketch18.addConstraint(Sketcher.Constraint("Tangent", 2, 2, 3, 2))
sketch18.addConstraint(Sketcher.Constraint("Tangent", 3, 1, 0, 1))
sketch18.addConstraint(Sketcher.Constraint("Equal", 1, 3))
sketch18.addConstraint(Sketcher.Constraint("Radius", 1, 1.0))
sketch18.addConstraint(Sketcher.Constraint("Angle", 0, Q("-135 deg")))
sketch18.addConstraint(Sketcher.Constraint("DistanceX", 2, 2, 0, 2, 0.6878))
sketch18.addConstraint(Sketcher.Constraint("DistanceX", -1, 1, 3, 3, 25.477112))
sketch18.addConstraint(Sketcher.Constraint("DistanceY", 3, 3, -1, 1, 13.582888))
pocket15 = body.newObject("PartDesign::Pocket", "Pocket014")
pocket15.Profile = sketch18
pocket15.Type = "UpToFirst"
pocket15.Reversed = True

doc.recompute()
